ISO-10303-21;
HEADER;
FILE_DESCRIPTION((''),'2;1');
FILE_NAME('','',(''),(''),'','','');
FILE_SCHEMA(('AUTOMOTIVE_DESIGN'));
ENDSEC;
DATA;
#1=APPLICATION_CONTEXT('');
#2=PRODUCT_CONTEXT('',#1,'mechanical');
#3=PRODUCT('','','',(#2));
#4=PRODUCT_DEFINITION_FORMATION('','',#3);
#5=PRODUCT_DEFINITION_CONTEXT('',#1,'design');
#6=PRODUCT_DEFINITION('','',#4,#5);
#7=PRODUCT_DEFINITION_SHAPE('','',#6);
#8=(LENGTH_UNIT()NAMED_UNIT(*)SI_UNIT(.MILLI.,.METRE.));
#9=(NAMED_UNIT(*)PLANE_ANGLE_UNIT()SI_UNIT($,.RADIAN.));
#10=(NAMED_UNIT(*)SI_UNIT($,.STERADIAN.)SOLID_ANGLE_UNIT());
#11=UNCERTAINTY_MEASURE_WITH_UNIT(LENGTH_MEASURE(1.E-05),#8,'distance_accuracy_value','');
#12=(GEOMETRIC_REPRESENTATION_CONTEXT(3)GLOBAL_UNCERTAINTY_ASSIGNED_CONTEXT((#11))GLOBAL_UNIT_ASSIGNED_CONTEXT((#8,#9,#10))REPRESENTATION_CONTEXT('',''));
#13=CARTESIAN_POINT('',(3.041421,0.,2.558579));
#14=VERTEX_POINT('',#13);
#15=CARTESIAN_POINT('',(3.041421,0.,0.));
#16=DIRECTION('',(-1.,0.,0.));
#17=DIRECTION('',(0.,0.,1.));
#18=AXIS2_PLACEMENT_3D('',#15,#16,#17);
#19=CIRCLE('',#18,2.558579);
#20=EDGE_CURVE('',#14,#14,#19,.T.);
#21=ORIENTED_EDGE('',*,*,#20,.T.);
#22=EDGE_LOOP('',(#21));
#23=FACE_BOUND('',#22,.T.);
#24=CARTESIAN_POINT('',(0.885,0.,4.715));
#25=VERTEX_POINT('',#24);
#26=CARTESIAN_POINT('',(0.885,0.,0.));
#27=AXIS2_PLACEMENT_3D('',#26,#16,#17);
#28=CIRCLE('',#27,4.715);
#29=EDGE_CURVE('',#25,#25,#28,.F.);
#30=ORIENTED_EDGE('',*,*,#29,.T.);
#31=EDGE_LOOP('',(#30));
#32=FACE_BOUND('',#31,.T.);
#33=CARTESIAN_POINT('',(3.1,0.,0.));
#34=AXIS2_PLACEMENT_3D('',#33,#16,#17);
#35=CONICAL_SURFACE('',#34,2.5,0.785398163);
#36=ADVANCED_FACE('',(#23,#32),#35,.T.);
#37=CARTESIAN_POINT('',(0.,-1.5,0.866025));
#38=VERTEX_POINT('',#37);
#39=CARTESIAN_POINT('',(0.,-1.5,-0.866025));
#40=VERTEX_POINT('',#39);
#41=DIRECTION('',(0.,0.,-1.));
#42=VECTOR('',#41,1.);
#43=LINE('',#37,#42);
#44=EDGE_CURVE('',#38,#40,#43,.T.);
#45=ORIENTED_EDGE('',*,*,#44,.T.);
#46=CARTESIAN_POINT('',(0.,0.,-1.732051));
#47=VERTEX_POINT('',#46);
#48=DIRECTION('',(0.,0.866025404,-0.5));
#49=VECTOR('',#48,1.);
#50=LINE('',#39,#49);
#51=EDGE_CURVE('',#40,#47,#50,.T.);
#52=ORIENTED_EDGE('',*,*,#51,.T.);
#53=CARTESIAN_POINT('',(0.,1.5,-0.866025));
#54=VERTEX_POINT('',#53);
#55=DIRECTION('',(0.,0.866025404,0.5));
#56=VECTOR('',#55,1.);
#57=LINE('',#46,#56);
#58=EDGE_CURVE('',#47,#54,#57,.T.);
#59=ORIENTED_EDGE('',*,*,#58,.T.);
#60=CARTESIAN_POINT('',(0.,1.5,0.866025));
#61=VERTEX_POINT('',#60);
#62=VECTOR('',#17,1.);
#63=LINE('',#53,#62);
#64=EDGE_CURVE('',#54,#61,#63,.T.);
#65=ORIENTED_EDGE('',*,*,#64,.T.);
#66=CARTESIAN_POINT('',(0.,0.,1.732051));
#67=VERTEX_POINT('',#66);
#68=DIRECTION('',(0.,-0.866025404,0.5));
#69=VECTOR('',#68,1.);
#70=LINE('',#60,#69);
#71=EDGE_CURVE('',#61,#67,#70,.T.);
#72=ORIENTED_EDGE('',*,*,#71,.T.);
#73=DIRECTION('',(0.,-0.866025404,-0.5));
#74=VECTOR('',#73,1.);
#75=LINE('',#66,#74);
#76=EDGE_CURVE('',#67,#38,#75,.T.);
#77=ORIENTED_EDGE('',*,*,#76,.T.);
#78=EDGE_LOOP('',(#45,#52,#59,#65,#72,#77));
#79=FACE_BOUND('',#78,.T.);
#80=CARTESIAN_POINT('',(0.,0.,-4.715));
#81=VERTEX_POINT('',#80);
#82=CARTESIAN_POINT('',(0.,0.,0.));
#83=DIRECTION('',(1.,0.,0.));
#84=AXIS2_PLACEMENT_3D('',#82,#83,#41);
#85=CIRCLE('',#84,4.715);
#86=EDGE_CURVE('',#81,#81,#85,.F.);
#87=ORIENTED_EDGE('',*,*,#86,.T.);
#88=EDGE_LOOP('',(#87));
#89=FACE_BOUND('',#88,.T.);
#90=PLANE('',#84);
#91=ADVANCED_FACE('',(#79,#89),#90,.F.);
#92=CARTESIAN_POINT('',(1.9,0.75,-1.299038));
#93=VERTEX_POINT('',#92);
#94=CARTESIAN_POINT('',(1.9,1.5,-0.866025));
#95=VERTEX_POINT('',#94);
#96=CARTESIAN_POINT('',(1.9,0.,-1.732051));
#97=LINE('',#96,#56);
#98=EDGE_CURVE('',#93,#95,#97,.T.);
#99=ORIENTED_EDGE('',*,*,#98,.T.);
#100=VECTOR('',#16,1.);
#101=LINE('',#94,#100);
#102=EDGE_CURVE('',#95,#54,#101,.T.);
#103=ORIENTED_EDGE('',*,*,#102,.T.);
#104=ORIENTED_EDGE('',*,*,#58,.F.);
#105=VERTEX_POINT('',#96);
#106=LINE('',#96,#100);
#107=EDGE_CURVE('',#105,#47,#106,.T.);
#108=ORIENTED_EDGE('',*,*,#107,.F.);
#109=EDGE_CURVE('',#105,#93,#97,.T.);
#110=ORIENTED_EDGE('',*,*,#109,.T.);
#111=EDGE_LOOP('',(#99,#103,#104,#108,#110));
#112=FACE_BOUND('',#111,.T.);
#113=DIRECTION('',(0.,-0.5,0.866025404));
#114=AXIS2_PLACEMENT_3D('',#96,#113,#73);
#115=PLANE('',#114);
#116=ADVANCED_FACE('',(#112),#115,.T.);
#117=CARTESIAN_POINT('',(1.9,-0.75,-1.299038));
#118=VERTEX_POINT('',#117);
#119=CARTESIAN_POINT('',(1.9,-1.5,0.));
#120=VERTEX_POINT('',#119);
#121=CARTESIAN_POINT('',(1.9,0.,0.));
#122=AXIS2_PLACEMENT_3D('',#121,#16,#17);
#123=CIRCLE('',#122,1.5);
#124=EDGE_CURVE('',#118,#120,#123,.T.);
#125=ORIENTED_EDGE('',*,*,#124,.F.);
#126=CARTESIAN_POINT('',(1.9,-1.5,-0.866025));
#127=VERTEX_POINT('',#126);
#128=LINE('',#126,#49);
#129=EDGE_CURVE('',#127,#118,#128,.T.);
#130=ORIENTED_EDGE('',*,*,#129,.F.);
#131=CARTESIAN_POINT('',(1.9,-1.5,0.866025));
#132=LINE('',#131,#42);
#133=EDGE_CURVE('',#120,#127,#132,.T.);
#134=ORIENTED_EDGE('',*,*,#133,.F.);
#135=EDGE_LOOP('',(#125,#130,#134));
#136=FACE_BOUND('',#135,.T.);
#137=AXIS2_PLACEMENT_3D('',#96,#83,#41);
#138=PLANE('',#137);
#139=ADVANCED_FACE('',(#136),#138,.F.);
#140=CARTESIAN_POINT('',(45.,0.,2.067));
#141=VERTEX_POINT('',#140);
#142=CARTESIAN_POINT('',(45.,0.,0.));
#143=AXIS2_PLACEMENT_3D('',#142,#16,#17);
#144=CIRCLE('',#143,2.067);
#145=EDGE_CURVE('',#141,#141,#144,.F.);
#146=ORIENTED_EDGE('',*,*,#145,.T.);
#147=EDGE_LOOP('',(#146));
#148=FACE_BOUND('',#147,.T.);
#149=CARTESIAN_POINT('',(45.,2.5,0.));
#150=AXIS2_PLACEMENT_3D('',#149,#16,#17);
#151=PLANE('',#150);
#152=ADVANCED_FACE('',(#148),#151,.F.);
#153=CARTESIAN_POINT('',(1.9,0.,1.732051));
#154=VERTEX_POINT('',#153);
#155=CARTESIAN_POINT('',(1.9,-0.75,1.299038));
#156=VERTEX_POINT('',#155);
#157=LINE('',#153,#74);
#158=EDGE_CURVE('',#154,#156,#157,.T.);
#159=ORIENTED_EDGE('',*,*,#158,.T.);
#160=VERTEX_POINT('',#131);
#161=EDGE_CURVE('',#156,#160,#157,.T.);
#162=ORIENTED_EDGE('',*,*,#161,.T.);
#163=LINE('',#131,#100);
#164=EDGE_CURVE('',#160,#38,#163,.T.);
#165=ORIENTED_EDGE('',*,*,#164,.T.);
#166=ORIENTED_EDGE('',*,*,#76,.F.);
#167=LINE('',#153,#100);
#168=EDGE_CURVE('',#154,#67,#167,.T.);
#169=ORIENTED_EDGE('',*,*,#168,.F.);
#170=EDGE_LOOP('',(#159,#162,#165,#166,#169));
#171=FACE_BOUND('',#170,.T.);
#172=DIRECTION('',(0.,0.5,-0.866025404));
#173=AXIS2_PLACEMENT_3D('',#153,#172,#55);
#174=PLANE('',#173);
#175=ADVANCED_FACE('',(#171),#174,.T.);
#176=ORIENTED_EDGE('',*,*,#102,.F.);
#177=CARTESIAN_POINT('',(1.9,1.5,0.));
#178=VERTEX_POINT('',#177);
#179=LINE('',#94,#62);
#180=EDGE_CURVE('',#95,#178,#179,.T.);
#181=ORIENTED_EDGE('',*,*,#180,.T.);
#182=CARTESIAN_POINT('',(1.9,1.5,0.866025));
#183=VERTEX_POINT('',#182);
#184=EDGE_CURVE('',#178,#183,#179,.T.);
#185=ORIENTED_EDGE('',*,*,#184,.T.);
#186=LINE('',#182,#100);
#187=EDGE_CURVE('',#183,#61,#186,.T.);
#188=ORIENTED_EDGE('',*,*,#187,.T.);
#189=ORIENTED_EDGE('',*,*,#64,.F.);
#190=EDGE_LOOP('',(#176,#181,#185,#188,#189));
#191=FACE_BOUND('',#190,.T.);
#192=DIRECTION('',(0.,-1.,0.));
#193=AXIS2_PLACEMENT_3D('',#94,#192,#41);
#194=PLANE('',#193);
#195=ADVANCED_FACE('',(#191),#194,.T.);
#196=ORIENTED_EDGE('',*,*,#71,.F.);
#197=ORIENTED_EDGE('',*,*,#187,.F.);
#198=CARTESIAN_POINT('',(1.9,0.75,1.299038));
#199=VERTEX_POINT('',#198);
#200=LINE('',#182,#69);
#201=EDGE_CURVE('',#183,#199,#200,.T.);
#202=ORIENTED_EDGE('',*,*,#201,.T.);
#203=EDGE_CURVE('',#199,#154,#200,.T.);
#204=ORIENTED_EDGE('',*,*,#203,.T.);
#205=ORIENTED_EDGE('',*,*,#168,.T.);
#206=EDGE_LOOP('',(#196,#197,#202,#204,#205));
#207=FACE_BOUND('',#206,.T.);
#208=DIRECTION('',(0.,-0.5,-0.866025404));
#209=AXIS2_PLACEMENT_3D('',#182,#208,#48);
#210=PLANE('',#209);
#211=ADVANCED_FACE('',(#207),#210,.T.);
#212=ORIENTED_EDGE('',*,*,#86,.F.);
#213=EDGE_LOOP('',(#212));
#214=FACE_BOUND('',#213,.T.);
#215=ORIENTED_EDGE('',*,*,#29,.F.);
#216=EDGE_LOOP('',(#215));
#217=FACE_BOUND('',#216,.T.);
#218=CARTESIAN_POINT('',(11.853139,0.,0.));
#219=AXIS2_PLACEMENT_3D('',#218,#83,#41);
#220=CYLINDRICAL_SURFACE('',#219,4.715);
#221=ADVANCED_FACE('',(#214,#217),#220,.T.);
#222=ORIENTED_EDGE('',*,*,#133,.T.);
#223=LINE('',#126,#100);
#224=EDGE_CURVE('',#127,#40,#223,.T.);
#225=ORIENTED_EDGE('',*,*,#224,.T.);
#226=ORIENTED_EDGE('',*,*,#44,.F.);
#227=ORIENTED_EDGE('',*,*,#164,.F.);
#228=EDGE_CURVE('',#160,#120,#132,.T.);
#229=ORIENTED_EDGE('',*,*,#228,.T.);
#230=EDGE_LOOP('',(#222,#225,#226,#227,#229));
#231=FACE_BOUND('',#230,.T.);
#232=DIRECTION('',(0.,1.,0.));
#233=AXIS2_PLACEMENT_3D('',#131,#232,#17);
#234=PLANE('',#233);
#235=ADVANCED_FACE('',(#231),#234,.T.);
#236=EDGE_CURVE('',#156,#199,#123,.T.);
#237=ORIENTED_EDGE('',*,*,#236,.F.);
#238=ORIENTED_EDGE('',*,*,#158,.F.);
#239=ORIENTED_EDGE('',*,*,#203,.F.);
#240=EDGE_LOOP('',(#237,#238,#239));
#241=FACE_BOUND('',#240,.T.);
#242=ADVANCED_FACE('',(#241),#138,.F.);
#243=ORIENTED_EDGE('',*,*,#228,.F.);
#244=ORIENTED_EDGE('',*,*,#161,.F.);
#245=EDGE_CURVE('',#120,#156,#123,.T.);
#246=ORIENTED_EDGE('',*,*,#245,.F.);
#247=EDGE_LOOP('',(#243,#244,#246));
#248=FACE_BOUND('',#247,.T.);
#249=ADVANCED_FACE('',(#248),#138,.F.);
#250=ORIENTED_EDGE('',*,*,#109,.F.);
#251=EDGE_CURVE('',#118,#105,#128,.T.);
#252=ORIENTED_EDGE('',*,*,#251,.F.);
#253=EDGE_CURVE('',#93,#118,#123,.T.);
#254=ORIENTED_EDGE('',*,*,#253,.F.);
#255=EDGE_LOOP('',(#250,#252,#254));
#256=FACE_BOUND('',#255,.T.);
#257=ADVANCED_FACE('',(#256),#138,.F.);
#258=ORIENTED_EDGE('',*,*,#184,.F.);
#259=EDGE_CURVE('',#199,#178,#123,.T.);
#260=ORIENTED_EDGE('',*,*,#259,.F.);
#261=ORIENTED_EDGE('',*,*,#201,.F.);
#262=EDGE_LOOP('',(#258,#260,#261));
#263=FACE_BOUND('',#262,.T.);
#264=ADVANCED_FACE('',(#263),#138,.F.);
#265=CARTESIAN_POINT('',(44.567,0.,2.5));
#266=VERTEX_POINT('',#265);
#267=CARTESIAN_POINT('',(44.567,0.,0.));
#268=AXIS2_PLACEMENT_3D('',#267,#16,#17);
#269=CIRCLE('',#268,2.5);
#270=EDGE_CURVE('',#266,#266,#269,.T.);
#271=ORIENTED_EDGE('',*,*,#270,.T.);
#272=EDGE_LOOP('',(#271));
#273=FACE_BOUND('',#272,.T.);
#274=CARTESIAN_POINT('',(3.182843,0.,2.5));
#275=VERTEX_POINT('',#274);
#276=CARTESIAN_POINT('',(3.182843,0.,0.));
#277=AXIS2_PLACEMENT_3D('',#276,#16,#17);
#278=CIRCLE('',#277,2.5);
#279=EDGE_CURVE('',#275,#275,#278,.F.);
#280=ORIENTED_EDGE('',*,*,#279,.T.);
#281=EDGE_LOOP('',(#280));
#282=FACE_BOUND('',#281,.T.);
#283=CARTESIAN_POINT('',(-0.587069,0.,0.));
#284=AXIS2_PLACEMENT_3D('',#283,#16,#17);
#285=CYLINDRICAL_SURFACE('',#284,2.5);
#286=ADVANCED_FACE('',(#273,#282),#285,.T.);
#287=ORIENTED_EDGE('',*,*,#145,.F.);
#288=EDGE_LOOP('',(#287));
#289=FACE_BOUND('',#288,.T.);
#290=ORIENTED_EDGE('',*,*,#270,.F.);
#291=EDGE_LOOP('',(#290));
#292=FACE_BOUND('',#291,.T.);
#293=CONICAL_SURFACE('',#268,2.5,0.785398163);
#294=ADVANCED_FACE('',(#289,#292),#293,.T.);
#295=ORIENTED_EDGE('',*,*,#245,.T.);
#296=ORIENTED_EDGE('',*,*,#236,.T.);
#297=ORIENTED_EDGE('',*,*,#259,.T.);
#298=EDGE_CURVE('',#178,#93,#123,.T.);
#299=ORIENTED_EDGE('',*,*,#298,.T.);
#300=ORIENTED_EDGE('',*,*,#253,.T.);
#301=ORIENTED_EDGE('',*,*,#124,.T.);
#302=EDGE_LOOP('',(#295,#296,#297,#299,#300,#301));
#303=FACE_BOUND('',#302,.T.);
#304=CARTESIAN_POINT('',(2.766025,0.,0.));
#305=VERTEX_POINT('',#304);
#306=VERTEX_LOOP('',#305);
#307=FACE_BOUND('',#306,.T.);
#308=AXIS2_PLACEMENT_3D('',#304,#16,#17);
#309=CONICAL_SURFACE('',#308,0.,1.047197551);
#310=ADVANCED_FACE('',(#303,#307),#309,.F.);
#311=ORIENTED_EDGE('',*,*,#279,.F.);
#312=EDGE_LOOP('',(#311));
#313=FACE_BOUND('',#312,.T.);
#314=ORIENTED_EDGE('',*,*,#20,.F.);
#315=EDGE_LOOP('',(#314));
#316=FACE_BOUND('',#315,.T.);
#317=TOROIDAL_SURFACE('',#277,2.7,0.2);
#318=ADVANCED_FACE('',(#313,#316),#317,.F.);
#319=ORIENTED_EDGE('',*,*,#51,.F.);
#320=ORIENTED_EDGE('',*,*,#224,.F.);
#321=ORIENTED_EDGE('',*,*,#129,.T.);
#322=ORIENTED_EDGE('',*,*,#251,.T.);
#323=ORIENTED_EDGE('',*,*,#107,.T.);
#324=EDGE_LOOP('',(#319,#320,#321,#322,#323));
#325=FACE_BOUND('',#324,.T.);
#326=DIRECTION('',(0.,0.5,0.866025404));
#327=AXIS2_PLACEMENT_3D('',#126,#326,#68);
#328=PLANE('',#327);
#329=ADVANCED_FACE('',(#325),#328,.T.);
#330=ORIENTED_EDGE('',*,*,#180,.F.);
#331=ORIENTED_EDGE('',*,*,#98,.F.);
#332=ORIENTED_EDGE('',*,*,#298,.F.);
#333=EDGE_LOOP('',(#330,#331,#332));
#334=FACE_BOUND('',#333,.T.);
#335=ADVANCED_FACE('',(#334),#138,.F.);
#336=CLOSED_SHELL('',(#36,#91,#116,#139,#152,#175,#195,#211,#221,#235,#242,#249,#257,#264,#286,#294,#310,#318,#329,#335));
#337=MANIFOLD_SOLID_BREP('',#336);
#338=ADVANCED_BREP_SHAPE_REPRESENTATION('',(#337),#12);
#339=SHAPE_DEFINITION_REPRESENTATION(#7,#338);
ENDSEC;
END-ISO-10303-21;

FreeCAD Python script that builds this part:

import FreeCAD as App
import Part
import Sketcher
from FreeCAD import Vector
Q = App.Units.Quantity


def edges_at(feature, points):
    """Names of the edges that pass closest to the given points."""
    edges = feature.Shape.Edges
    near = lambda p: min(range(len(edges)), key=lambda i: edges[i].distToShape(Part.Vertex(*p))[0])
    return sorted({f"Edge{near(p) + 1}" for p in points})


def add_polygon(sketch, points):
    """Adds a closed chain of lines whose ends are joined by coincident constraints."""
    first, n = sketch.GeometryCount, len(points)
    for a, b in zip(points, points[1:] + points[:1]):
        sketch.addGeometry(Part.LineSegment(App.Vector(*a, 0), App.Vector(*b, 0)), False)
    for i in range(n):
        sketch.addConstraint(Sketcher.Constraint("Coincident", first + i, 2, first + (i + 1) % n, 1))

doc = App.newDocument("Part")
params = doc.addObject("Spreadsheet::Sheet", "Params")
for row, (alias, value) in enumerate([
    ("sketch1_width", "45 mm"),
    ("sketch1_width2", "41.9 mm"),
    ("sketch1_height", "5.6 mm"),
    ("revolution_angle", "360 deg"),
    ("pocket1_length", "1.9 mm"),
    ("sketch3_height", "1.5 mm"),
    ("groove_angle", "360 deg"),
    ("fillet_radius", "0.2 mm"),
    ("chamfer_size", "0.433 mm"),
    ("sketch4_width", "5 mm"),
    ("groove2_angle", "360 deg"),
], start=1):
    params.set(f"A{row}", alias)
    params.set(f"B{row}", "=" + value)
    params.setAlias(f"B{row}", alias)

body = doc.addObject("PartDesign::Body", "Body")

sketch1 = body.newObject("Sketcher::SketchObject", "Sketch")
sketch1.AttachmentSupport = (doc.getObject("XY_Plane"), [""])
sketch1.MapMode = "FlatFace"
add_polygon(sketch1, [(0, 5.6), (0, 0), (45, 0), (45, 2.5), (3.1, 2.5)])
sketch1.addConstraint([
    Sketcher.Constraint("Vertical", 0),
    Sketcher.Constraint("Horizontal", 1),
    Sketcher.Constraint("Vertical", 2),
    Sketcher.Constraint("Horizontal", 3),
    Sketcher.Constraint("Coincident", 0, 2, -1, 1),
    Sketcher.Constraint("DistanceX", 1, 1, 1, 2, Q("45 mm")),
    Sketcher.Constraint("Angle", 4, Q("135 deg")),
    Sketcher.Constraint("DistanceX", 3, 2, 3, 1, Q("41.9 mm")),
    Sketcher.Constraint("DistanceY", 0, 2, 0, 1, Q("5.6 mm")),
])
sketch1.setExpression("Constraints[10]", "Params.sketch1_width")
sketch1.setExpression("Constraints[12]", "Params.sketch1_width2")
sketch1.setExpression("Constraints[13]", "Params.sketch1_height")
revolution = body.newObject("PartDesign::Revolution", "Revolution")
revolution.Profile = sketch1
revolution.ReferenceAxis = (sketch1, ["H_Axis"])
revolution.setExpression("Angle", "Params.revolution_angle")

sketch2 = body.newObject("Sketcher::SketchObject", "Sketch001")
sketch2.AttachmentSupport = (doc.getObject("YZ_Plane"), [""])
sketch2.MapMode = "FlatFace"
add_polygon(sketch2, [(0, -1.732051), (1.5, -0.866025), (1.5, 0.866025), (0, 1.732051), (-1.5, 0.866025), (-1.5, -0.866025)])
sketch2.addConstraint([
    Sketcher.Constraint("Vertical", 1),
    Sketcher.Constraint("Vertical", 4),
    Sketcher.Constraint("Symmetric", 0, 2, 3, 2, -1, 1),
    Sketcher.Constraint("Symmetric", 2, 2, 5, 2, -1, 1),
    Sketcher.Constraint("PointOnObject", 2, 2, -2),
    Sketcher.Constraint("Parallel", 2, 5),
    Sketcher.Constraint("Horizontal", 1, 2, 3, 2),
    Sketcher.Constraint("Angle", 0, Q("30 deg")),
    Sketcher.Constraint("DistanceX", 3, 2, 1, 2, Q("3 mm")),
    Sketcher.Constraint("DistanceY", 1, 1, 1, 2, Q("1.732051 mm")),
])
pocket1 = body.newObject("PartDesign::Pocket", "Pocket")
pocket1.Profile = sketch2
pocket1.setExpression("Length", "Params.pocket1_length")
pocket1.Reversed = True

sketch3 = body.newObject("Sketcher::SketchObject", "Sketch002")
sketch3.AttachmentSupport = (doc.getObject("XY_Plane"), [""])
sketch3.MapMode = "FlatFace"
add_polygon(sketch3, [(2.766025, 0), (1.9, 1.5), (1.9, 0)])
sketch3.addConstraint([
    Sketcher.Constraint("Vertical", 1),
    Sketcher.Constraint("Horizontal", 2),
    Sketcher.Constraint("PointOnObject", 1, 2, -1),
    Sketcher.Constraint("Angle", 0, Q("120 deg")),
    Sketcher.Constraint("DistanceY", 1, 2, 1, 1, Q("1.5 mm")),
    Sketcher.Constraint("DistanceX", -1, 1, 0, 2, Q("1.9 mm")),
])
sketch3.setExpression("Constraints[7]", "Params.sketch3_height")
groove = body.newObject("PartDesign::Groove", "Groove")
groove.Profile = sketch3
groove.ReferenceAxis = (sketch3, ["H_Axis"])
groove.setExpression("Angle", "Params.groove_angle")
doc.recompute()

fillet = body.newObject("PartDesign::Fillet", "Fillet")
fillet.Base = (groove, edges_at(groove, [(3.1, 0, -2.5)]))
fillet.setExpression("Radius", "Params.fillet_radius")
doc.recompute()

chamfer = body.newObject("PartDesign::Chamfer", "Chamfer")
chamfer.Base = (fillet, edges_at(fillet, [(45, 0, -2.5)]))
chamfer.setExpression("Size", "Params.chamfer_size")

sketch4 = body.newObject("Sketcher::SketchObject", "Sketch003")
sketch4.AttachmentSupport = (doc.getObject("XZ_Plane"), [""])
sketch4.MapMode = "FlatFace"
add_polygon(sketch4, [(-2, -9.715), (-2, -4.715), (3, -4.715), (3, -9.715)])
sketch4.addConstraint([
    Sketcher.Constraint("Vertical", 0),
    Sketcher.Constraint("Horizontal", 1),
    Sketcher.Constraint("Vertical", 2),
    Sketcher.Constraint("Horizontal", 3),
    Sketcher.Constraint("Equal", 3, 0),
    Sketcher.Constraint("DistanceX", 1, 1, 1, 2, Q("5 mm")),
    Sketcher.Constraint("DistanceX", 0, 2, -1, 1, Q("2 mm")),
    Sketcher.Constraint("DistanceY", 0, 2, -1, 1, Q("4.715 mm")),
])
sketch4.setExpression("Constraints[9]", "Params.sketch4_width")
groove2 = body.newObject("PartDesign::Groove", "Groove001")
groove2.Profile = sketch4
groove2.ReferenceAxis = (sketch4, ["H_Axis"])
groove2.setExpression("Angle", "Params.groove2_angle")

doc.recompute()
